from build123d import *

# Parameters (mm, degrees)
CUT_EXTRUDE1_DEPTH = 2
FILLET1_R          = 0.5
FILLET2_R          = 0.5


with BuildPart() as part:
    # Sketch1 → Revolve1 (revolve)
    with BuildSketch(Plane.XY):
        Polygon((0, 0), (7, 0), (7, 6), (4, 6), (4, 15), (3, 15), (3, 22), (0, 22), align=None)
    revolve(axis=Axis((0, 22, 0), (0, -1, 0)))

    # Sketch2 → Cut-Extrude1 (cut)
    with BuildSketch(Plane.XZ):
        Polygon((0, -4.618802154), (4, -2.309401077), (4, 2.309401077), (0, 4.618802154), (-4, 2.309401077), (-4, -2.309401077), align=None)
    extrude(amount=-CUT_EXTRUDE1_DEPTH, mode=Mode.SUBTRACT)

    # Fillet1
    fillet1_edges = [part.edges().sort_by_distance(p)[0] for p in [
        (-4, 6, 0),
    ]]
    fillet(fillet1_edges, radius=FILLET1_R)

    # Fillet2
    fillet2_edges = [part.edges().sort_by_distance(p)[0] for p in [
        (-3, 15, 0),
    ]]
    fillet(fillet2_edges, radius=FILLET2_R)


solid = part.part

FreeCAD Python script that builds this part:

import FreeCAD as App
import Part
import Sketcher

V = App.Vector
Q = App.Units.Quantity


def edges_at(feature, points):
    """Names of the edges that pass closest to the given points."""
    edges = feature.Shape.Edges
    near = lambda p: min(range(len(edges)), key=lambda i: edges[i].distToShape(Part.Vertex(*p))[0])
    return sorted({f"Edge{near(p) + 1}" for p in points})

doc = App.newDocument("Part")
params = doc.addObject("Spreadsheet::Sheet", "Params")
for row, (alias, value) in enumerate([
    ("sketch1_width", "7 mm"),
    ("sketch1_width2", "3 mm"),
    ("sketch1_height", "6 mm"),
    ("sketch1_height2", "9 mm"),
    ("revolution_angle", "360 deg"),
    ("pocket1_length", "2 mm"),
    ("fillet_radius", "0.5 mm"),
    ("fillet2_radius", "0.5 mm"),
], start=1):
    params.set(f"A{row}", alias)
    params.set(f"B{row}", "=" + value)
    params.setAlias(f"B{row}", alias)

body = doc.addObject("PartDesign::Body", "Body")

# Sketch on XY plane
sketch1 = body.newObject("Sketcher::SketchObject", "Sketch")
sketch1.AttachmentSupport = (doc.getObject("XY_Plane"), [""])
sketch1.MapMode = "FlatFace"
sketch1.addGeometry([
    Part.LineSegment(V(0, 0, 0), V(7, 0, 0)),  # 0
    Part.LineSegment(V(7, 0, 0), V(7, 6, 0)),  # 1
    Part.LineSegment(V(7, 6, 0), V(4, 6, 0)),  # 2
    Part.LineSegment(V(4, 6, 0), V(4, 15, 0)),  # 3
    Part.LineSegment(V(4, 15, 0), V(3, 15, 0)),  # 4
    Part.LineSegment(V(3, 15, 0), V(3, 22, 0)),  # 5
    Part.LineSegment(V(3, 22, 0), V(0, 22, 0)),  # 6
    Part.LineSegment(V(0, 22, 0), V(0, 0, 0)),  # 7
], False)
sketch1.addConstraint([
    Sketcher.Constraint("Coincident", 0, 2, 1, 1),
    Sketcher.Constraint("Coincident", 1, 2, 2, 1),
    Sketcher.Constraint("Coincident", 2, 2, 3, 1),
    Sketcher.Constraint("Coincident", 3, 2, 4, 1),
    Sketcher.Constraint("Coincident", 4, 2, 5, 1),
    Sketcher.Constraint("Coincident", 5, 2, 6, 1),
    Sketcher.Constraint("Coincident", 6, 2, 7, 1),
    Sketcher.Constraint("Coincident", 7, 2, 0, 1),
    Sketcher.Constraint("Horizontal", 0),
    Sketcher.Constraint("Vertical", 1),
    Sketcher.Constraint("Horizontal", 2),
    Sketcher.Constraint("Vertical", 3),
    Sketcher.Constraint("Horizontal", 4),
    Sketcher.Constraint("Vertical", 5),
    Sketcher.Constraint("Horizontal", 6),
    Sketcher.Constraint("Vertical", 7),
    Sketcher.Constraint("Coincident", 7, 2, -1, 1),
    Sketcher.Constraint("Equal", 2, 6),
    Sketcher.Constraint("Equal", 0, 5),
    Sketcher.Constraint("DistanceX", 0, 1, 0, 2, Q("7 mm")),
    Sketcher.Constraint("DistanceX", 2, 2, 2, 1, Q("3 mm")),
    Sketcher.Constraint("DistanceY", 1, 1, 1, 2, Q("6 mm")),
    Sketcher.Constraint("DistanceY", 3, 1, 3, 2, Q("9 mm")),
])
sketch1.setExpression("Constraints[19]", "Params.sketch1_width")
sketch1.setExpression("Constraints[20]", "Params.sketch1_width2")
sketch1.setExpression("Constraints[21]", "Params.sketch1_height")
sketch1.setExpression("Constraints[22]", "Params.sketch1_height2")
revolution = body.newObject("PartDesign::Revolution", "Revolution")
revolution.Profile = sketch1
revolution.ReferenceAxis = (sketch1, ["V_Axis"])
revolution.setExpression("Angle", "Params.revolution_angle")

# Sketch on XZ plane
sketch2 = body.newObject("Sketcher::SketchObject", "Sketch001")
sketch2.AttachmentSupport = (doc.getObject("XZ_Plane"), [""])
sketch2.MapMode = "FlatFace"
sketch2.addGeometry([
    Part.LineSegment(V(0, -4.6, 0), V(4, -2.3, 0)),  # 0
    Part.LineSegment(V(4, -2.3, 0), V(4, 2.3, 0)),  # 1
    Part.LineSegment(V(4, 2.3, 0), V(0, 4.6, 0)),  # 2
    Part.LineSegment(V(0, 4.6, 0), V(-4, 2.3, 0)),  # 3
    Part.LineSegment(V(-4, 2.3, 0), V(-4, -2.3, 0)),  # 4
    Part.LineSegment(V(-4, -2.3, 0), V(0, -4.6, 0)),  # 5
], False)
sketch2.addConstraint([
    Sketcher.Constraint("Coincident", 0, 2, 1, 1),
    Sketcher.Constraint("Coincident", 1, 2, 2, 1),
    Sketcher.Constraint("Coincident", 2, 2, 3, 1),
    Sketcher.Constraint("Coincident", 3, 2, 4, 1),
    Sketcher.Constraint("Coincident", 4, 2, 5, 1),
    Sketcher.Constraint("Coincident", 5, 2, 0, 1),
    Sketcher.Constraint("Vertical", 1),
    Sketcher.Constraint("Vertical", 4),
    Sketcher.Constraint("Symmetric", 0, 2, 3, 2, -1, 1),
    Sketcher.Constraint("Symmetric", 2, 2, 5, 2, -1, 1),
    Sketcher.Constraint("PointOnObject", 2, 2, -2),
    Sketcher.Constraint("Parallel", 2, 5),
    Sketcher.Constraint("Horizontal", 1, 2, 3, 2),
    Sketcher.Constraint("Angle", 0, Q("30 deg")),
    Sketcher.Constraint("DistanceX", -1, 1, 0, 2, Q("4 mm")),
    Sketcher.Constraint("DistanceY", 0, 2, -1, 1, Q("2.309401 mm")),
])
pocket1 = body.newObject("PartDesign::Pocket", "Pocket")
pocket1.Profile = sketch2
pocket1.setExpression("Length", "Params.pocket1_length")
doc.recompute()

fillet = body.newObject("PartDesign::Fillet", "Fillet")
fillet.Base = (pocket1, edges_at(pocket1, [(-4, 6, 0)]))
fillet.setExpression("Radius", "Params.fillet_radius")
doc.recompute()

fillet2 = body.newObject("PartDesign::Fillet", "Fillet001")
fillet2.Base = (fillet, edges_at(fillet, [(-3, 15, 0)]))
fillet2.setExpression("Radius", "Params.fillet2_radius")

doc.recompute()
